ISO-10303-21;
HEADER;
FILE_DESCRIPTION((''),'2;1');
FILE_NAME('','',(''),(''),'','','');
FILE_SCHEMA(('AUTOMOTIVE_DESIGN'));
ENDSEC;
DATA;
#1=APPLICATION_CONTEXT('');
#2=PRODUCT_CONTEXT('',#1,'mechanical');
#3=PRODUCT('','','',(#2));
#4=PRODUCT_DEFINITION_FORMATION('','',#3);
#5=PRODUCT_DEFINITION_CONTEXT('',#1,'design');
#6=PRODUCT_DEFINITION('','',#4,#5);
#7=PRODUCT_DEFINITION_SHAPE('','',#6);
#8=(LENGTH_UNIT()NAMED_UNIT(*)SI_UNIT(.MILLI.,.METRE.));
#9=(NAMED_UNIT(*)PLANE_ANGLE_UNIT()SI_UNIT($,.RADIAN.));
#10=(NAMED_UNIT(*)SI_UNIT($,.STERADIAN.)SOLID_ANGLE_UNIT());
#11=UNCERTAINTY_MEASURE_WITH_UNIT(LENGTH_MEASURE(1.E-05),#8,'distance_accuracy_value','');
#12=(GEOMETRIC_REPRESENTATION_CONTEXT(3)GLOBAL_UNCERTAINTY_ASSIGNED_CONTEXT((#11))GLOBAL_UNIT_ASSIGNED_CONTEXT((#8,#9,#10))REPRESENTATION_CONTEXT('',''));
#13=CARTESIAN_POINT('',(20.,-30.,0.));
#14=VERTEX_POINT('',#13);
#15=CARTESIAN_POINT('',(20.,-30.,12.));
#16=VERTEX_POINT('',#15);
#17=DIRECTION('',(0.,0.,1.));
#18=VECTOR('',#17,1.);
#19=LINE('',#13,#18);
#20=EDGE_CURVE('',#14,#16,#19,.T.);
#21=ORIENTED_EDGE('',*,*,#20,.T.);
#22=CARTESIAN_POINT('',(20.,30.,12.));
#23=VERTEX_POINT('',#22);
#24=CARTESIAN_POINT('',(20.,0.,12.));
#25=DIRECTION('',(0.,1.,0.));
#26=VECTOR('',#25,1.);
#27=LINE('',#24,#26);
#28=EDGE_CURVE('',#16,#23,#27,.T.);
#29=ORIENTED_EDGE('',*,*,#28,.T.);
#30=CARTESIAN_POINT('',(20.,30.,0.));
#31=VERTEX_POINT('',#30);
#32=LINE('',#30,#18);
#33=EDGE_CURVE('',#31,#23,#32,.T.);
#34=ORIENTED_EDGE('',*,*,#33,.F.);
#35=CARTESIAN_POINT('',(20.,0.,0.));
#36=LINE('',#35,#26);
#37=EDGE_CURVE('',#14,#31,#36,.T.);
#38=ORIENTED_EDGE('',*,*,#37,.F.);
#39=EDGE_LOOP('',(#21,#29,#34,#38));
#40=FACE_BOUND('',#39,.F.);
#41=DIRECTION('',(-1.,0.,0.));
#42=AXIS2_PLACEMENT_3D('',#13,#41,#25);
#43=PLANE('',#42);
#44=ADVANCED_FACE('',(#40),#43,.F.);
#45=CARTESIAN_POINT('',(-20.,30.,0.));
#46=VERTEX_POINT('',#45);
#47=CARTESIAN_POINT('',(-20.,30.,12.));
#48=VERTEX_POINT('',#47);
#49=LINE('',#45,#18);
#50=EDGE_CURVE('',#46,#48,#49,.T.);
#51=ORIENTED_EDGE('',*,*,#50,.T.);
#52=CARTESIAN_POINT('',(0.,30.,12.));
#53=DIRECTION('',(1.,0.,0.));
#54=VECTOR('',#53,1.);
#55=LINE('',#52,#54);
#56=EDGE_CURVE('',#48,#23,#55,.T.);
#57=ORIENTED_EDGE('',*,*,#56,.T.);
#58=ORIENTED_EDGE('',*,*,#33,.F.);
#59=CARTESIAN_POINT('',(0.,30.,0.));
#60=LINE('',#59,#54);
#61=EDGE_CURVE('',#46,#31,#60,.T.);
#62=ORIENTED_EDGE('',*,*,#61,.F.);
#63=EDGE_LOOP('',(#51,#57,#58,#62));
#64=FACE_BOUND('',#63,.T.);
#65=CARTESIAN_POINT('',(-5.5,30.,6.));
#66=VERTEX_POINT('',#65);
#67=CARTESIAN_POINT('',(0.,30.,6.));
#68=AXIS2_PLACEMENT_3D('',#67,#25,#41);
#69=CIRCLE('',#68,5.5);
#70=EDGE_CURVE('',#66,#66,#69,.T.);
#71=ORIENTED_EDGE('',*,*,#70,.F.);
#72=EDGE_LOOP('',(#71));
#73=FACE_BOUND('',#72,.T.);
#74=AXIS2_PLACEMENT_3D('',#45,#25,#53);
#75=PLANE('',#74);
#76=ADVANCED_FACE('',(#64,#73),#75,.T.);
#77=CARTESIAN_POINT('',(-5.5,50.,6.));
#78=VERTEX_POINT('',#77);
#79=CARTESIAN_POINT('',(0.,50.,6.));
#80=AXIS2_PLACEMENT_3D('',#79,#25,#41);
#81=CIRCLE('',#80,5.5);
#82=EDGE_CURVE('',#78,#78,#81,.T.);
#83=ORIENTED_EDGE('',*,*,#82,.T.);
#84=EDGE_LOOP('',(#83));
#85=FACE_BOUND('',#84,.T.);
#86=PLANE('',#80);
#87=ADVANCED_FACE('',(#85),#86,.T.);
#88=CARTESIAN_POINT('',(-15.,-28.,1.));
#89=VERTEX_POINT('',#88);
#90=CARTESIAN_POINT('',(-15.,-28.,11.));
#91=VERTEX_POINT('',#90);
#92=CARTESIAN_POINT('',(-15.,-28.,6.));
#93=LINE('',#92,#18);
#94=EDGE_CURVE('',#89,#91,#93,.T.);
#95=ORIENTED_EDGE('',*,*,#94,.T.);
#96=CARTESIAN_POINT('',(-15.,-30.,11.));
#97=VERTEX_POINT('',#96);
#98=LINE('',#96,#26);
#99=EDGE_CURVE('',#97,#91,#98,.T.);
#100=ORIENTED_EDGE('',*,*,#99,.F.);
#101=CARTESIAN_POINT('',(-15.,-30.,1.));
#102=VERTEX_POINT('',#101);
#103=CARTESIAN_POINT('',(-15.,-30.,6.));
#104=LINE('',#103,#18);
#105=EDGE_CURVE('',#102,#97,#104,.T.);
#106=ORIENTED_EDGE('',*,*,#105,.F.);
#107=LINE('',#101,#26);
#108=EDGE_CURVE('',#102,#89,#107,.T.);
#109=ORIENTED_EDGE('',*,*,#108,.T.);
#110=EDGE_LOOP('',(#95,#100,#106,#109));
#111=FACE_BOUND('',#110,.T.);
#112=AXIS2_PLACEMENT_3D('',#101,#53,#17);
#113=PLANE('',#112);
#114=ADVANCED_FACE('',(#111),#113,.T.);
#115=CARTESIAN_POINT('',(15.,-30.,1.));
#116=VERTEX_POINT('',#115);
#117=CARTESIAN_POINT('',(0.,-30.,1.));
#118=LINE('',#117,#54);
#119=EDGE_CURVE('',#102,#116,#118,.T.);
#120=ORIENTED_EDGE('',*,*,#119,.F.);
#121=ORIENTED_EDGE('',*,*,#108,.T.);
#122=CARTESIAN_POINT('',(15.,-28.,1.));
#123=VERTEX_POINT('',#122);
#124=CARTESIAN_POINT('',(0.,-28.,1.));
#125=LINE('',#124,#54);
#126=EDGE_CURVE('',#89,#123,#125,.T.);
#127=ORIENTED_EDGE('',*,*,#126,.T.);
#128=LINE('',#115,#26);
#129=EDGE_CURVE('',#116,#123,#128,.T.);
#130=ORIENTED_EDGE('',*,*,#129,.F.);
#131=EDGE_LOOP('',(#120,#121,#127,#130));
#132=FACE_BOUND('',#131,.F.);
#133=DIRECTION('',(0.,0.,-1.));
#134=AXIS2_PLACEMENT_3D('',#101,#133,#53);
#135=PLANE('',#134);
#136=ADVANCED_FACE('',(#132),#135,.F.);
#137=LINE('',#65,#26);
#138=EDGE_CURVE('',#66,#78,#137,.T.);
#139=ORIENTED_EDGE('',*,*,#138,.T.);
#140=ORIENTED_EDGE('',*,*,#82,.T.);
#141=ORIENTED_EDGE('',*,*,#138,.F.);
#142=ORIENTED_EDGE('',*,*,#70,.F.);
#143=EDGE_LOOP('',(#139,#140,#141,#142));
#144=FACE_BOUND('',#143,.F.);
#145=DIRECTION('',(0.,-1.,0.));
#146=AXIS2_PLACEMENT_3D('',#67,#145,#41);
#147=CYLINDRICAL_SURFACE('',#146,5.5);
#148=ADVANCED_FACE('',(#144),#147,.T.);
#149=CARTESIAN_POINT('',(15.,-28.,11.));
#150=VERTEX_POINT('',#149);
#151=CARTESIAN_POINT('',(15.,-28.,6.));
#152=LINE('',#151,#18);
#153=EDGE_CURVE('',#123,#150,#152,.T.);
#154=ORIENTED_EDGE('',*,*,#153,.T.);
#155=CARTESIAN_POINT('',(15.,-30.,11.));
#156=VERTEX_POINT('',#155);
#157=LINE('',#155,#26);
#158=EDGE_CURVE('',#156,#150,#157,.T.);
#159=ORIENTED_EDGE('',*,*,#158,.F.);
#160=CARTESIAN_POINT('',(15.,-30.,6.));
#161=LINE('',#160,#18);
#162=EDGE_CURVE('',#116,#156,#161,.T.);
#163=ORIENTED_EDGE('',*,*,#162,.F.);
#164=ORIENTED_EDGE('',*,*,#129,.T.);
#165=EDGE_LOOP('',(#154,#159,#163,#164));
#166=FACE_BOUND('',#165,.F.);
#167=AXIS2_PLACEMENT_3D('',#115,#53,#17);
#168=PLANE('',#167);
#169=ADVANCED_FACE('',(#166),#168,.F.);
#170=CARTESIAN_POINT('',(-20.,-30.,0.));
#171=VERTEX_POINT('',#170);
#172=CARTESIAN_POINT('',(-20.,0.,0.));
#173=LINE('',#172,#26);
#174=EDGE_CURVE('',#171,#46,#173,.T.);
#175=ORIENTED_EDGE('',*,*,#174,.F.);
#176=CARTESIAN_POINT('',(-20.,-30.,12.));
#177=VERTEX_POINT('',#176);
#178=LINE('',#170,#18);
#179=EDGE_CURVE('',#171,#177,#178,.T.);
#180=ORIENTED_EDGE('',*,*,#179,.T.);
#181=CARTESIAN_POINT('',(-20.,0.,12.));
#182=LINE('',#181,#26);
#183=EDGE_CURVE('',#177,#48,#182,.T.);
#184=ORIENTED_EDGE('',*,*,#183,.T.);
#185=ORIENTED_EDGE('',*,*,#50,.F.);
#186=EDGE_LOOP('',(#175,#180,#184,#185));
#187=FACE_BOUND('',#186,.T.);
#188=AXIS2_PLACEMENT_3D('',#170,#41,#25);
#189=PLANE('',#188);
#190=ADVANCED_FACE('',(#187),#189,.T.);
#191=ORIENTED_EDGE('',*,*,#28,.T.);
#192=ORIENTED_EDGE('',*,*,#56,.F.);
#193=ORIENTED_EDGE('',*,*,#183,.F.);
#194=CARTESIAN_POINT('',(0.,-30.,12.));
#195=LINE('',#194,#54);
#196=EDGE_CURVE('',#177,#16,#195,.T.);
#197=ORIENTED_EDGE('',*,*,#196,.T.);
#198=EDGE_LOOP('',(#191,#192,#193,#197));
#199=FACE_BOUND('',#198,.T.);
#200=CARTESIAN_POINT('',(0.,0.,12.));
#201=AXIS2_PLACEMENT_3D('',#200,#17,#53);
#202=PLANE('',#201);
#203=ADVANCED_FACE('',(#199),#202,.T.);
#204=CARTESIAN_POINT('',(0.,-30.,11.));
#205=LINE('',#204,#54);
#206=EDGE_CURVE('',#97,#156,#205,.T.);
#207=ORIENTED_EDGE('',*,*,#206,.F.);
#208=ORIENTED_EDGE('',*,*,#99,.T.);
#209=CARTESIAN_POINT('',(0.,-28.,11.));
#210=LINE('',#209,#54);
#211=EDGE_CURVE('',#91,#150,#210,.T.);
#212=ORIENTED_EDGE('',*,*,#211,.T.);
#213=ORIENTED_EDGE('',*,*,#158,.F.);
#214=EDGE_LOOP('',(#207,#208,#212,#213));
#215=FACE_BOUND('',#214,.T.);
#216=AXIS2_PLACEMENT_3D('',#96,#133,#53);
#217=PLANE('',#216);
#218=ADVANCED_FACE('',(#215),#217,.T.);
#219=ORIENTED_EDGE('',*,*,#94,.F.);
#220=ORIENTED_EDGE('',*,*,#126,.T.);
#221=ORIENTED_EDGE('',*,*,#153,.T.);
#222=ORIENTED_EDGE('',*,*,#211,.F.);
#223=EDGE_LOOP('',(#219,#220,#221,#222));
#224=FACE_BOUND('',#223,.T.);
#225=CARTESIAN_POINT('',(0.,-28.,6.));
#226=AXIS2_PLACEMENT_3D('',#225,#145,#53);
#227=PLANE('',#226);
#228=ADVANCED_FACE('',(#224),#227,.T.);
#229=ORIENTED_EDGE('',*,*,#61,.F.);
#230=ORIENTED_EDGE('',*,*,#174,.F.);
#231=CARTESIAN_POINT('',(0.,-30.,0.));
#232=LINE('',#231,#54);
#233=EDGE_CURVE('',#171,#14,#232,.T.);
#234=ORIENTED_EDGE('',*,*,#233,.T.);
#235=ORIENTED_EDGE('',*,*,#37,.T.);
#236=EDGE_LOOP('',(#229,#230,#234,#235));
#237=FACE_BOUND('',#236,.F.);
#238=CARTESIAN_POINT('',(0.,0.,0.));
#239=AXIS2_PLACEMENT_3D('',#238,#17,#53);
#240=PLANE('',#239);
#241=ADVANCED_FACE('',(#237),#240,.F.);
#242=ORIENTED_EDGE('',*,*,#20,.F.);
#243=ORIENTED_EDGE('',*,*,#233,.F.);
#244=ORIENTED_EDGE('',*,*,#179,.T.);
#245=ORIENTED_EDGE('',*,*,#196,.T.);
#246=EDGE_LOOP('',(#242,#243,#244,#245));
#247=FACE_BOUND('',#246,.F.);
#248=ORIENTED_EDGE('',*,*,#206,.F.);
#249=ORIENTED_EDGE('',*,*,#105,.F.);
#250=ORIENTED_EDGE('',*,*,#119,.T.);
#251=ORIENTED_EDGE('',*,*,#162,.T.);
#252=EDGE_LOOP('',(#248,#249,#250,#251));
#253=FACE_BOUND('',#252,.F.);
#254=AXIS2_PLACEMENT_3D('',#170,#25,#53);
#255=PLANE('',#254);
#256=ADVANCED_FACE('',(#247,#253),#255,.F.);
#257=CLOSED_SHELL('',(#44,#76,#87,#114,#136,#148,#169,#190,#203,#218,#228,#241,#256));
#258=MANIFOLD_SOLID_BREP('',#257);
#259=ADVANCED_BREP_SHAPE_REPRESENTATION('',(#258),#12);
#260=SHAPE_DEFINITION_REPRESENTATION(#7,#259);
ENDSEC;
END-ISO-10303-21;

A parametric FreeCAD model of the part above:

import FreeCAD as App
import Part
import Sketcher
from FreeCAD import Vector

doc = App.newDocument("Part")
body = doc.addObject("PartDesign::Body", "Body")

# Sketch on XY plane
sketch1 = doc.addObject("Sketcher::SketchObject", "Sketch")
body.addObject(sketch1)
sketch1.AttachmentSupport = (doc.XY_Plane, [""])
sketch1.MapMode = "FlatFace"
sketch1.addGeometry([
    Part.LineSegment(Vector(-20, 30, 0), Vector(-20, -30, 0)),
    Part.LineSegment(Vector(-20, -30, 0), Vector(20, -30, 0)),
    Part.LineSegment(Vector(20, -30, 0), Vector(20, 30, 0)),
    Part.LineSegment(Vector(20, 30, 0), Vector(-20, 30, 0)),
], False)
sketch1.addConstraint([
    Sketcher.Constraint("Coincident", 0, 2, 1, 1),
    Sketcher.Constraint("Coincident", 1, 2, 2, 1),
    Sketcher.Constraint("Coincident", 2, 2, 3, 1),
    Sketcher.Constraint("Coincident", 3, 2, 0, 1),
    Sketcher.Constraint("Vertical", 0),
    Sketcher.Constraint("Horizontal", 1),
    Sketcher.Constraint("Vertical", 2),
    Sketcher.Constraint("Horizontal", 3),
    Sketcher.Constraint("Symmetric", 0, 2, 2, 2, -1, 1),
    Sketcher.Constraint("DistanceX", 1, 1, 1, 2, 40.0),
    Sketcher.Constraint("DistanceY", 0, 2, 0, 1, 60.0),
])
pad1 = doc.addObject("PartDesign::Pad", "Pad")
body.addObject(pad1)
pad1.Profile = sketch1
pad1.Length = 12

# Sketch on XZ plane
sketch2 = doc.addObject("Sketcher::SketchObject", "Sketch001")
body.addObject(sketch2)
sketch2.AttachmentSupport = (doc.XZ_Plane, [""])
sketch2.MapMode = "FlatFace"
sketch2.AttachmentOffset = App.Placement(Vector(0, 0, 30), App.Rotation())
sketch2.addGeometry([
    Part.LineSegment(Vector(-15, 11, 0), Vector(-15, 1, 0)),
    Part.LineSegment(Vector(-15, 1, 0), Vector(15, 1, 0)),
    Part.LineSegment(Vector(15, 1, 0), Vector(15, 11, 0)),
    Part.LineSegment(Vector(15, 11, 0), Vector(-15, 11, 0)),
], False)
sketch2.addConstraint([
    Sketcher.Constraint("Coincident", 0, 2, 1, 1),
    Sketcher.Constraint("Coincident", 1, 2, 2, 1),
    Sketcher.Constraint("Coincident", 2, 2, 3, 1),
    Sketcher.Constraint("Coincident", 3, 2, 0, 1),
    Sketcher.Constraint("Vertical", 0),
    Sketcher.Constraint("Horizontal", 1),
    Sketcher.Constraint("Vertical", 2),
    Sketcher.Constraint("Horizontal", 3),
    Sketcher.Constraint("DistanceX", 1, 1, 1, 2, 30.0),
    Sketcher.Constraint("DistanceY", 0, 2, 0, 1, 10.0),
    Sketcher.Constraint("DistanceX", 0, 2, -1, 1, 15.0),
    Sketcher.Constraint("DistanceY", -1, 1, 0, 2, 1.0),
])
pocket1 = doc.addObject("PartDesign::Pocket", "Pocket")
body.addObject(pocket1)
pocket1.Profile = sketch2
pocket1.Length = 2

# Sketch on XZ plane
sketch3 = doc.addObject("Sketcher::SketchObject", "Sketch002")
body.addObject(sketch3)
sketch3.AttachmentSupport = (doc.XZ_Plane, [""])
sketch3.MapMode = "FlatFace"
sketch3.AttachmentOffset = App.Placement(Vector(0, 0, -30), App.Rotation())
sketch3.addGeometry(Part.Circle(Vector(0, 6, 0), Vector(0, 0, 1), 5.5), False)
sketch3.addConstraint([
    Sketcher.Constraint("PointOnObject", 0, 3, -2),
    Sketcher.Constraint("Diameter", 0, 11.0),
    Sketcher.Constraint("DistanceY", -1, 1, 0, 3, 6.0),
])
pad2 = doc.addObject("PartDesign::Pad", "Pad001")
body.addObject(pad2)
pad2.Profile = sketch3
pad2.Length = 20
pad2.Reversed = True

doc.recompute()
